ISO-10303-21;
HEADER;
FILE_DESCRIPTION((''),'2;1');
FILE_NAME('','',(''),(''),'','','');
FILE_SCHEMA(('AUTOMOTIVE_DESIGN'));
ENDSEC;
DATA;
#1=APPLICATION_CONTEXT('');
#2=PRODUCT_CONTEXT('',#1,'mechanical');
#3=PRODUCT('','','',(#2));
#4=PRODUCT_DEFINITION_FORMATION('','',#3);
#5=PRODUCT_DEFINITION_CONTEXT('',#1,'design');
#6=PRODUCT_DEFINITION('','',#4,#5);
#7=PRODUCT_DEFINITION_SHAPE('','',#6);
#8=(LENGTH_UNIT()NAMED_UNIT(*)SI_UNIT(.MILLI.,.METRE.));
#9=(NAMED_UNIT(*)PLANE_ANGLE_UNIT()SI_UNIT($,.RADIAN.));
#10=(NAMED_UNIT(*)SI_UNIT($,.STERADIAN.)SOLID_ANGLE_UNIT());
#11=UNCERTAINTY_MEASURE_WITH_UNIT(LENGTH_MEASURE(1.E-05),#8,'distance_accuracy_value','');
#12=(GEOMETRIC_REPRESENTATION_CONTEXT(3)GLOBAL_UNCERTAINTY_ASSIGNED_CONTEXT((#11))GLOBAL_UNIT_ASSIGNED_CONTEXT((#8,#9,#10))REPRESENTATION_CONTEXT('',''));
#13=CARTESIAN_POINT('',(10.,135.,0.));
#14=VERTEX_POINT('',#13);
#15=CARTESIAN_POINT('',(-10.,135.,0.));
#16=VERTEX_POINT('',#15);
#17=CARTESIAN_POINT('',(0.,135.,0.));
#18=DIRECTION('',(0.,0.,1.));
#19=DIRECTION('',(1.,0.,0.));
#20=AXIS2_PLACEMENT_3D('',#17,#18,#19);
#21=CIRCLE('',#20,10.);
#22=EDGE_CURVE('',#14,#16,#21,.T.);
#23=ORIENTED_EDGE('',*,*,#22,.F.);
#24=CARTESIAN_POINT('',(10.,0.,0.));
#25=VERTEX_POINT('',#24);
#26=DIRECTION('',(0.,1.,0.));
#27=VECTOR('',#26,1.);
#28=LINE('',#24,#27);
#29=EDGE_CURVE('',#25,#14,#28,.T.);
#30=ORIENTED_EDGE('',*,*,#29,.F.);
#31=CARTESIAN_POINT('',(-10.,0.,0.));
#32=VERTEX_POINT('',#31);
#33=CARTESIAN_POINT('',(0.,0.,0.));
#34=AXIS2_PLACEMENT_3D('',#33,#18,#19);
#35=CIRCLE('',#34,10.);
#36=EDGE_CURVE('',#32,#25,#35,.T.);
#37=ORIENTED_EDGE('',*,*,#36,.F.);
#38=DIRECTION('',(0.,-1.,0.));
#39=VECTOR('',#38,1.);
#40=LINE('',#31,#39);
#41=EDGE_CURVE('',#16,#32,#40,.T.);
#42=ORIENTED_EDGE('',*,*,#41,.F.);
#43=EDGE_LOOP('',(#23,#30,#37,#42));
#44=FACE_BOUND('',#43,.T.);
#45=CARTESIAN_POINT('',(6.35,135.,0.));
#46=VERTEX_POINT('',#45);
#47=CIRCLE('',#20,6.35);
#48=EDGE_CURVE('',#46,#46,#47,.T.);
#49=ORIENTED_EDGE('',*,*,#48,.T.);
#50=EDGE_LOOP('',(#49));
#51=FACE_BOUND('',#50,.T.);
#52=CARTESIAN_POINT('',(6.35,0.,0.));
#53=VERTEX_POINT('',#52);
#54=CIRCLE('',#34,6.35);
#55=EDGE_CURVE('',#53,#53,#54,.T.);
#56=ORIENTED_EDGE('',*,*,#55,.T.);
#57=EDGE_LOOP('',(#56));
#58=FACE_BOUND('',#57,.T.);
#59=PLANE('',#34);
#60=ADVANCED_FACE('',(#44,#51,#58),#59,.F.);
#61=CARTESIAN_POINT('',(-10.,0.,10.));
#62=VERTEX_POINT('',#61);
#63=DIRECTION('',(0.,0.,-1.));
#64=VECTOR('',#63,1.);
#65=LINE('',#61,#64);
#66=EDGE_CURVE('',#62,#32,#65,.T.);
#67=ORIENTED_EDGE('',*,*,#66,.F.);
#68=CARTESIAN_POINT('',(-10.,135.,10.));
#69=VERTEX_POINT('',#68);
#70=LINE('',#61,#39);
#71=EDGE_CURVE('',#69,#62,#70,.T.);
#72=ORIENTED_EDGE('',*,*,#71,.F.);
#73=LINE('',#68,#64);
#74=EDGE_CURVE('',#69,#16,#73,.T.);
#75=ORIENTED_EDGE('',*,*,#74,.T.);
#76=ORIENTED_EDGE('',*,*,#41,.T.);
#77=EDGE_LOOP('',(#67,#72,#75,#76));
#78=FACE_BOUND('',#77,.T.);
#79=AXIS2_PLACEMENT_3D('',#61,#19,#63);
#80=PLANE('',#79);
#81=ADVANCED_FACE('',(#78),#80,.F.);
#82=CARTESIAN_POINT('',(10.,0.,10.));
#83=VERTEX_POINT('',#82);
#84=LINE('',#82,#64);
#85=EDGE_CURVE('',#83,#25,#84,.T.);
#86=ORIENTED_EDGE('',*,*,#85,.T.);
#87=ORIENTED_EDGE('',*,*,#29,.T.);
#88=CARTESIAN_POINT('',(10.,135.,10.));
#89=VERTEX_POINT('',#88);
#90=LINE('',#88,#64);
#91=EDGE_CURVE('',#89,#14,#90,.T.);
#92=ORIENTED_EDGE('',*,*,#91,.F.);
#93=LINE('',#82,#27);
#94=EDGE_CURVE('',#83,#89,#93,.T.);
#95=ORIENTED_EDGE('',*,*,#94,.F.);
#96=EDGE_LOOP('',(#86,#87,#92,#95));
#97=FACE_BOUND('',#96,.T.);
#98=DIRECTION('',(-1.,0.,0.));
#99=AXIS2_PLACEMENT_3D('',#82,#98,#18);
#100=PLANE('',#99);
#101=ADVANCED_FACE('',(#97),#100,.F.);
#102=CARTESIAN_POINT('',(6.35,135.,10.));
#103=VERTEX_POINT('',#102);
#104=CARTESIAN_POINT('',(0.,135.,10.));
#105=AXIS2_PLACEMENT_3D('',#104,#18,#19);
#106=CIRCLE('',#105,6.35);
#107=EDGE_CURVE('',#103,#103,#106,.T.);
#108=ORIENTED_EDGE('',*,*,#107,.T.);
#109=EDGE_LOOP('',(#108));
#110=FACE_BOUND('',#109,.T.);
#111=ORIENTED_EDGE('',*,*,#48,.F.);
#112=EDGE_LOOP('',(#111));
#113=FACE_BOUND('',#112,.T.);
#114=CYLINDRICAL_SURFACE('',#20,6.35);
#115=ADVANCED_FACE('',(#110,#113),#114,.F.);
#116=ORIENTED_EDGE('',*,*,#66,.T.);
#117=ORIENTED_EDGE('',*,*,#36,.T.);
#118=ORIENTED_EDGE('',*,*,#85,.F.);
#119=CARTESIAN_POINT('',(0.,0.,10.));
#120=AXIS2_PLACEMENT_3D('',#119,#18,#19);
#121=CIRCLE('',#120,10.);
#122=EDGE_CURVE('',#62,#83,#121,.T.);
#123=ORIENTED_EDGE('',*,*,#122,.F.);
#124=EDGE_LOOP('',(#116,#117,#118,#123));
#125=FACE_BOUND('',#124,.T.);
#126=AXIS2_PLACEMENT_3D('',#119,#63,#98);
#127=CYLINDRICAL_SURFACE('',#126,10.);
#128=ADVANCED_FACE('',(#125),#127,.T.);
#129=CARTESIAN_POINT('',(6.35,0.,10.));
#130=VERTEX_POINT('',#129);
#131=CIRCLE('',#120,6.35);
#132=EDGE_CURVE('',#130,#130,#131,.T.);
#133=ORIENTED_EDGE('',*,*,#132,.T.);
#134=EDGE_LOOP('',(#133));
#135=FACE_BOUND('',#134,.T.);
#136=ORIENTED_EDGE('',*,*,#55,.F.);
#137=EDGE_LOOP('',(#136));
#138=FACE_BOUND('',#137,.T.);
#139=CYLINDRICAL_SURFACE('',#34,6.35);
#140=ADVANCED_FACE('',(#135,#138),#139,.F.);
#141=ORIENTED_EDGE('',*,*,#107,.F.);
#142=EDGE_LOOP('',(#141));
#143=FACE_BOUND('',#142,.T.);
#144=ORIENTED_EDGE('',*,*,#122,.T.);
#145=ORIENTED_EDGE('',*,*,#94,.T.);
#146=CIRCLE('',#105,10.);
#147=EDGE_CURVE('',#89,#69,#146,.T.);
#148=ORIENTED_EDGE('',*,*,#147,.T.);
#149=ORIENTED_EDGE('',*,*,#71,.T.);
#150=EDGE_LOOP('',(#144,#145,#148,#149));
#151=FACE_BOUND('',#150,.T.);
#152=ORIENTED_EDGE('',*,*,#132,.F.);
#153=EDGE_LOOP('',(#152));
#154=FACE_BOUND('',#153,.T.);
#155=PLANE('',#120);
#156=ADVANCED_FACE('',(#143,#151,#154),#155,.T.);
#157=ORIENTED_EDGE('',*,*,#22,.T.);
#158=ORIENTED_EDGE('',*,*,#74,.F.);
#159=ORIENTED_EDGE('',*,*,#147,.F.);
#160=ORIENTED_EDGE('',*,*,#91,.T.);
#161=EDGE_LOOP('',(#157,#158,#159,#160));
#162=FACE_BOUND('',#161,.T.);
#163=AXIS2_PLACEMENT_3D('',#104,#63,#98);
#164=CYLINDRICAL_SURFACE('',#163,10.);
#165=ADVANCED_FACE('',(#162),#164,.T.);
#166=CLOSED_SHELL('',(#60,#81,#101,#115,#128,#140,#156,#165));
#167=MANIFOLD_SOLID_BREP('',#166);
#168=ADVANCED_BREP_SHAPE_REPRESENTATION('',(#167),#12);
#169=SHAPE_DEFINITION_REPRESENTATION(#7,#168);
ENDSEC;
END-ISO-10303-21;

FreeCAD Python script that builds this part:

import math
import FreeCAD as App
import Part
import Sketcher
from FreeCAD import Vector
Q = App.Units.Quantity

doc = App.newDocument("Part")
body = doc.addObject("PartDesign::Body", "Body")

sketch1 = body.newObject("Sketcher::SketchObject", "Sketch")
sketch1.AttachmentSupport = (doc.getObject("XY_Plane"), [""])
sketch1.MapMode = "FlatFace"
sketch1.addGeometry([
    Part.LineSegment(Vector(-10, 135, 0), Vector(-10, 0, 0)),
    Part.ArcOfCircle(Part.Circle(Vector(0, 0, 0), Vector(0, 0, 1), 10), math.radians(180), math.radians(360)),
    Part.LineSegment(Vector(10, 0, 0), Vector(10, 135, 0)),
    Part.ArcOfCircle(Part.Circle(Vector(0, 135, 0), Vector(0, 0, 1), 10), math.radians(0), math.radians(180)),
], False)
sketch1.addConstraint([
    Sketcher.Constraint("Tangent", 0, 2, 1, 1),
    Sketcher.Constraint("Tangent", 1, 2, 2, 1),
    Sketcher.Constraint("Tangent", 2, 2, 3, 1),
    Sketcher.Constraint("Tangent", 3, 2, 0, 1),
    Sketcher.Constraint("Vertical", 0),
    Sketcher.Constraint("Vertical", 2),
    Sketcher.Constraint("Coincident", 1, 3, -1, 1),
    Sketcher.Constraint("Radius", 1, Q("10 mm")),
    Sketcher.Constraint("DistanceY", 0, 2, 0, 1, Q("135 mm")),
])
pad1 = body.newObject("PartDesign::Pad", "Pad")
pad1.Profile = sketch1
pad1.Length = 10

sketch2 = body.newObject("Sketcher::SketchObject", "Sketch001")
sketch2.AttachmentSupport = (doc.getObject("XY_Plane"), [""])
sketch2.MapMode = "FlatFace"
sketch2.AttachmentOffset = App.Placement(Vector(0, 0, 10), App.Rotation())
sketch2.addGeometry([
    Part.Circle(Vector(0, 135, 0), Vector(0, 0, 1), 6),
    Part.Circle(Vector(0, 0, 0), Vector(0, 0, 1), 6),
], False)
sketch2.addConstraint([
    Sketcher.Constraint("Coincident", 1, 3, -1, 1),
    Sketcher.Constraint("Equal", 0, 1),
    Sketcher.Constraint("PointOnObject", 0, 3, -2),
    Sketcher.Constraint("Diameter", 0, Q("12.7 mm")),
    Sketcher.Constraint("DistanceY", -1, 1, 0, 3, Q("135 mm")),
])
pocket1 = body.newObject("PartDesign::Pocket", "Pocket")
pocket1.Profile = sketch2
pocket1.Type = "ThroughAll"

doc.recompute()
